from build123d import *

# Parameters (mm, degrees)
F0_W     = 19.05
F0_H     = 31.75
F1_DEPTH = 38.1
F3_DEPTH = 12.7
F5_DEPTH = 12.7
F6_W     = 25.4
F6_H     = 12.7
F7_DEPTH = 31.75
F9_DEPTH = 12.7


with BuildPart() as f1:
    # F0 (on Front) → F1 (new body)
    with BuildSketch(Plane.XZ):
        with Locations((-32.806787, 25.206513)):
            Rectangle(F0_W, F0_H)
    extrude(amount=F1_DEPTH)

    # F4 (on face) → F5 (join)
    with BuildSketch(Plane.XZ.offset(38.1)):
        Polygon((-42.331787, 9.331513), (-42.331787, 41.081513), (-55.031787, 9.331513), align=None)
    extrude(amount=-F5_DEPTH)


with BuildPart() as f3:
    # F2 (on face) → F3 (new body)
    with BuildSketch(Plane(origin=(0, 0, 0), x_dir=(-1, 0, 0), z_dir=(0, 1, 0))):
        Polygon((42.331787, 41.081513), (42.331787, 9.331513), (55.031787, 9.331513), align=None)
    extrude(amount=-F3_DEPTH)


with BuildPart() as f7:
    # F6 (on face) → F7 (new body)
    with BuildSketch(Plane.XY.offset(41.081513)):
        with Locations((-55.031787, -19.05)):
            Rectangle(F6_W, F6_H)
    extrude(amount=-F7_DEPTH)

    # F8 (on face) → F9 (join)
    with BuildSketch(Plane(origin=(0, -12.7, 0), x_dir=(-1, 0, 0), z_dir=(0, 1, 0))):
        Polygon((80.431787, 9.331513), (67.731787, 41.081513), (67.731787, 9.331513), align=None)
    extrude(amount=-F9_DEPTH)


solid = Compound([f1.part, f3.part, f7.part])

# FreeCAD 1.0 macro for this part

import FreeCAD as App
import Part
import Sketcher
Q = App.Units.Quantity

doc = App.newDocument("Part")
body = doc.addObject("PartDesign::Body", "Body")

# Sketch on XZ plane
sketch1 = body.newObject("Sketcher::SketchObject", "Sketch")
sketch1.AttachmentSupport = (doc.getObject("XZ_Plane"), [""])
sketch1.MapMode = "FlatFace"
sketch1.addGeometry([
    Part.LineSegment(App.Vector(-42.331787, 41.081513, 0), App.Vector(-42.331787, 9.331513, 0)),
    Part.LineSegment(App.Vector(-42.331787, 9.331513, 0), App.Vector(-23.281787, 9.331513, 0)),
    Part.LineSegment(App.Vector(-23.281787, 9.331513, 0), App.Vector(-23.281787, 41.081513, 0)),
    Part.LineSegment(App.Vector(-23.281787, 41.081513, 0), App.Vector(-42.331787, 41.081513, 0)),
], False)
sketch1.addConstraint([
    Sketcher.Constraint("Coincident", 0, 2, 1, 1),
    Sketcher.Constraint("Coincident", 1, 2, 2, 1),
    Sketcher.Constraint("Coincident", 2, 2, 3, 1),
    Sketcher.Constraint("Coincident", 3, 2, 0, 1),
    Sketcher.Constraint("Vertical", 0),
    Sketcher.Constraint("Horizontal", 1),
    Sketcher.Constraint("Vertical", 2),
    Sketcher.Constraint("Horizontal", 3),
    Sketcher.Constraint("DistanceX", 1, 1, 1, 2, Q("0.75 in")),
    Sketcher.Constraint("DistanceY", 0, 2, 0, 1, Q("1.25 in")),
    Sketcher.Constraint("DistanceX", 0, 2, -1, 1, 42.331787),
    Sketcher.Constraint("DistanceY", -1, 1, 0, 2, 9.331513),
])
pad1 = body.newObject("PartDesign::Pad", "Pad")
pad1.Profile = sketch1
pad1.Length = Q("1.5 in")

# Sketch on XZ plane
sketch2 = body.newObject("Sketcher::SketchObject", "Sketch001")
sketch2.AttachmentSupport = (doc.getObject("XZ_Plane"), [""])
sketch2.MapMode = "FlatFace"
sketch2.AttachmentOffset = App.Placement(App.Vector(0, 0, 1.5 * 25.4), App.Rotation())
sketch2.addGeometry([
    Part.LineSegment(App.Vector(-42.331787, 9.331513, 0), App.Vector(-42.331787, 41.081513, 0)),
    Part.LineSegment(App.Vector(-42.331787, 41.081513, 0), App.Vector(-55.031787, 9.331513, 0)),
    Part.LineSegment(App.Vector(-55.031787, 9.331513, 0), App.Vector(-42.331787, 9.331513, 0)),
], False)
sketch2.addConstraint([
    Sketcher.Constraint("Coincident", 0, 2, 1, 1),
    Sketcher.Constraint("Coincident", 1, 2, 2, 1),
    Sketcher.Constraint("Coincident", 2, 2, 0, 1),
    Sketcher.Constraint("Vertical", 0),
    Sketcher.Constraint("Horizontal", 2),
    Sketcher.Constraint("DistanceX", 2, 1, 2, 2, Q("0.5 in")),
    Sketcher.Constraint("DistanceY", 0, 1, 0, 2, Q("1.25 in")),
    Sketcher.Constraint("DistanceX", 0, 2, -1, 1, 42.331787),
    Sketcher.Constraint("DistanceY", -1, 1, 0, 2, 41.081513),
])
pad2 = body.newObject("PartDesign::Pad", "Pad001")
pad2.Profile = sketch2
pad2.Length = Q("0.5 in")
pad2.Reversed = True
body2 = doc.addObject("PartDesign::Body", "Body001")

# Sketch on XZ plane
sketch3 = body2.newObject("Sketcher::SketchObject", "Sketch002")
sketch3.AttachmentSupport = (doc.getObject("XZ_Plane001"), [""])
sketch3.MapMode = "FlatFace"
sketch3.addGeometry([
    Part.LineSegment(App.Vector(-42.331787, 41.081513, 0), App.Vector(-42.331787, 9.331513, 0)),
    Part.LineSegment(App.Vector(-42.331787, 9.331513, 0), App.Vector(-55.031787, 9.331513, 0)),
    Part.LineSegment(App.Vector(-55.031787, 9.331513, 0), App.Vector(-42.331787, 41.081513, 0)),
], False)
sketch3.addConstraint([
    Sketcher.Constraint("Coincident", 0, 2, 1, 1),
    Sketcher.Constraint("Coincident", 1, 2, 2, 1),
    Sketcher.Constraint("Coincident", 2, 2, 0, 1),
    Sketcher.Constraint("Vertical", 0),
    Sketcher.Constraint("Horizontal", 1),
    Sketcher.Constraint("DistanceX", 1, 2, 1, 1, Q("0.5 in")),
    Sketcher.Constraint("DistanceY", 0, 2, 0, 1, Q("1.25 in")),
    Sketcher.Constraint("DistanceX", 0, 2, -1, 1, 42.331787),
    Sketcher.Constraint("DistanceY", -1, 1, 0, 2, 9.331513),
])
pad3 = body2.newObject("PartDesign::Pad", "Pad002")
pad3.Profile = sketch3
pad3.Length = Q("0.5 in")
body3 = doc.addObject("PartDesign::Body", "Body002")

# Sketch on XY plane
sketch4 = body3.newObject("Sketcher::SketchObject", "Sketch003")
sketch4.AttachmentSupport = (doc.getObject("XY_Plane002"), [""])
sketch4.MapMode = "FlatFace"
sketch4.AttachmentOffset = App.Placement(App.Vector(0, 0, 41.081513), App.Rotation())
sketch4.addGeometry([
    Part.LineSegment(App.Vector(-67.731787, -12.7, 0), App.Vector(-67.731787, -25.4, 0)),
    Part.LineSegment(App.Vector(-67.731787, -25.4, 0), App.Vector(-42.331787, -25.4, 0)),
    Part.LineSegment(App.Vector(-42.331787, -25.4, 0), App.Vector(-42.331787, -12.7, 0)),
    Part.LineSegment(App.Vector(-42.331787, -12.7, 0), App.Vector(-67.731787, -12.7, 0)),
], False)
sketch4.addConstraint([
    Sketcher.Constraint("Coincident", 0, 2, 1, 1),
    Sketcher.Constraint("Coincident", 1, 2, 2, 1),
    Sketcher.Constraint("Coincident", 2, 2, 3, 1),
    Sketcher.Constraint("Coincident", 3, 2, 0, 1),
    Sketcher.Constraint("Vertical", 0),
    Sketcher.Constraint("Horizontal", 1),
    Sketcher.Constraint("Vertical", 2),
    Sketcher.Constraint("Horizontal", 3),
    Sketcher.Constraint("DistanceX", 1, 1, 1, 2, Q("1 in")),
    Sketcher.Constraint("DistanceY", 0, 2, 0, 1, Q("0.5 in")),
    Sketcher.Constraint("DistanceY", 0, 2, -1, 1, Q("1 in")),
    Sketcher.Constraint("DistanceX", 0, 2, -1, 1, 67.731787),
])
pad4 = body3.newObject("PartDesign::Pad", "Pad003")
pad4.Profile = sketch4
pad4.Length = Q("1.25 in")
pad4.Reversed = True

# Sketch on XZ plane
sketch5 = body3.newObject("Sketcher::SketchObject", "Sketch004")
sketch5.AttachmentSupport = (doc.getObject("XZ_Plane002"), [""])
sketch5.MapMode = "FlatFace"
sketch5.AttachmentOffset = App.Placement(App.Vector(0, 0, 0.5 * 25.4), App.Rotation())
sketch5.addGeometry([
    Part.LineSegment(App.Vector(-80.431787, 9.331513, 0), App.Vector(-67.731787, 41.081513, 0)),
    Part.LineSegment(App.Vector(-67.731787, 41.081513, 0), App.Vector(-67.731787, 9.331513, 0)),
    Part.LineSegment(App.Vector(-67.731787, 9.331513, 0), App.Vector(-80.431787, 9.331513, 0)),
], False)
sketch5.addConstraint([
    Sketcher.Constraint("Coincident", 0, 2, 1, 1),
    Sketcher.Constraint("Coincident", 1, 2, 2, 1),
    Sketcher.Constraint("Coincident", 2, 2, 0, 1),
    Sketcher.Constraint("Vertical", 1),
    Sketcher.Constraint("Horizontal", 2),
    Sketcher.Constraint("DistanceX", 2, 2, 2, 1, Q("0.5 in")),
    Sketcher.Constraint("DistanceY", 1, 2, 1, 1, Q("1.25 in")),
    Sketcher.Constraint("DistanceX", 0, 2, -1, 1, 67.731787),
    Sketcher.Constraint("DistanceY", -1, 1, 0, 2, 41.081513),
])
pad5 = body3.newObject("PartDesign::Pad", "Pad004")
pad5.Profile = sketch5
pad5.Length = Q("0.5 in")

doc.recompute()
